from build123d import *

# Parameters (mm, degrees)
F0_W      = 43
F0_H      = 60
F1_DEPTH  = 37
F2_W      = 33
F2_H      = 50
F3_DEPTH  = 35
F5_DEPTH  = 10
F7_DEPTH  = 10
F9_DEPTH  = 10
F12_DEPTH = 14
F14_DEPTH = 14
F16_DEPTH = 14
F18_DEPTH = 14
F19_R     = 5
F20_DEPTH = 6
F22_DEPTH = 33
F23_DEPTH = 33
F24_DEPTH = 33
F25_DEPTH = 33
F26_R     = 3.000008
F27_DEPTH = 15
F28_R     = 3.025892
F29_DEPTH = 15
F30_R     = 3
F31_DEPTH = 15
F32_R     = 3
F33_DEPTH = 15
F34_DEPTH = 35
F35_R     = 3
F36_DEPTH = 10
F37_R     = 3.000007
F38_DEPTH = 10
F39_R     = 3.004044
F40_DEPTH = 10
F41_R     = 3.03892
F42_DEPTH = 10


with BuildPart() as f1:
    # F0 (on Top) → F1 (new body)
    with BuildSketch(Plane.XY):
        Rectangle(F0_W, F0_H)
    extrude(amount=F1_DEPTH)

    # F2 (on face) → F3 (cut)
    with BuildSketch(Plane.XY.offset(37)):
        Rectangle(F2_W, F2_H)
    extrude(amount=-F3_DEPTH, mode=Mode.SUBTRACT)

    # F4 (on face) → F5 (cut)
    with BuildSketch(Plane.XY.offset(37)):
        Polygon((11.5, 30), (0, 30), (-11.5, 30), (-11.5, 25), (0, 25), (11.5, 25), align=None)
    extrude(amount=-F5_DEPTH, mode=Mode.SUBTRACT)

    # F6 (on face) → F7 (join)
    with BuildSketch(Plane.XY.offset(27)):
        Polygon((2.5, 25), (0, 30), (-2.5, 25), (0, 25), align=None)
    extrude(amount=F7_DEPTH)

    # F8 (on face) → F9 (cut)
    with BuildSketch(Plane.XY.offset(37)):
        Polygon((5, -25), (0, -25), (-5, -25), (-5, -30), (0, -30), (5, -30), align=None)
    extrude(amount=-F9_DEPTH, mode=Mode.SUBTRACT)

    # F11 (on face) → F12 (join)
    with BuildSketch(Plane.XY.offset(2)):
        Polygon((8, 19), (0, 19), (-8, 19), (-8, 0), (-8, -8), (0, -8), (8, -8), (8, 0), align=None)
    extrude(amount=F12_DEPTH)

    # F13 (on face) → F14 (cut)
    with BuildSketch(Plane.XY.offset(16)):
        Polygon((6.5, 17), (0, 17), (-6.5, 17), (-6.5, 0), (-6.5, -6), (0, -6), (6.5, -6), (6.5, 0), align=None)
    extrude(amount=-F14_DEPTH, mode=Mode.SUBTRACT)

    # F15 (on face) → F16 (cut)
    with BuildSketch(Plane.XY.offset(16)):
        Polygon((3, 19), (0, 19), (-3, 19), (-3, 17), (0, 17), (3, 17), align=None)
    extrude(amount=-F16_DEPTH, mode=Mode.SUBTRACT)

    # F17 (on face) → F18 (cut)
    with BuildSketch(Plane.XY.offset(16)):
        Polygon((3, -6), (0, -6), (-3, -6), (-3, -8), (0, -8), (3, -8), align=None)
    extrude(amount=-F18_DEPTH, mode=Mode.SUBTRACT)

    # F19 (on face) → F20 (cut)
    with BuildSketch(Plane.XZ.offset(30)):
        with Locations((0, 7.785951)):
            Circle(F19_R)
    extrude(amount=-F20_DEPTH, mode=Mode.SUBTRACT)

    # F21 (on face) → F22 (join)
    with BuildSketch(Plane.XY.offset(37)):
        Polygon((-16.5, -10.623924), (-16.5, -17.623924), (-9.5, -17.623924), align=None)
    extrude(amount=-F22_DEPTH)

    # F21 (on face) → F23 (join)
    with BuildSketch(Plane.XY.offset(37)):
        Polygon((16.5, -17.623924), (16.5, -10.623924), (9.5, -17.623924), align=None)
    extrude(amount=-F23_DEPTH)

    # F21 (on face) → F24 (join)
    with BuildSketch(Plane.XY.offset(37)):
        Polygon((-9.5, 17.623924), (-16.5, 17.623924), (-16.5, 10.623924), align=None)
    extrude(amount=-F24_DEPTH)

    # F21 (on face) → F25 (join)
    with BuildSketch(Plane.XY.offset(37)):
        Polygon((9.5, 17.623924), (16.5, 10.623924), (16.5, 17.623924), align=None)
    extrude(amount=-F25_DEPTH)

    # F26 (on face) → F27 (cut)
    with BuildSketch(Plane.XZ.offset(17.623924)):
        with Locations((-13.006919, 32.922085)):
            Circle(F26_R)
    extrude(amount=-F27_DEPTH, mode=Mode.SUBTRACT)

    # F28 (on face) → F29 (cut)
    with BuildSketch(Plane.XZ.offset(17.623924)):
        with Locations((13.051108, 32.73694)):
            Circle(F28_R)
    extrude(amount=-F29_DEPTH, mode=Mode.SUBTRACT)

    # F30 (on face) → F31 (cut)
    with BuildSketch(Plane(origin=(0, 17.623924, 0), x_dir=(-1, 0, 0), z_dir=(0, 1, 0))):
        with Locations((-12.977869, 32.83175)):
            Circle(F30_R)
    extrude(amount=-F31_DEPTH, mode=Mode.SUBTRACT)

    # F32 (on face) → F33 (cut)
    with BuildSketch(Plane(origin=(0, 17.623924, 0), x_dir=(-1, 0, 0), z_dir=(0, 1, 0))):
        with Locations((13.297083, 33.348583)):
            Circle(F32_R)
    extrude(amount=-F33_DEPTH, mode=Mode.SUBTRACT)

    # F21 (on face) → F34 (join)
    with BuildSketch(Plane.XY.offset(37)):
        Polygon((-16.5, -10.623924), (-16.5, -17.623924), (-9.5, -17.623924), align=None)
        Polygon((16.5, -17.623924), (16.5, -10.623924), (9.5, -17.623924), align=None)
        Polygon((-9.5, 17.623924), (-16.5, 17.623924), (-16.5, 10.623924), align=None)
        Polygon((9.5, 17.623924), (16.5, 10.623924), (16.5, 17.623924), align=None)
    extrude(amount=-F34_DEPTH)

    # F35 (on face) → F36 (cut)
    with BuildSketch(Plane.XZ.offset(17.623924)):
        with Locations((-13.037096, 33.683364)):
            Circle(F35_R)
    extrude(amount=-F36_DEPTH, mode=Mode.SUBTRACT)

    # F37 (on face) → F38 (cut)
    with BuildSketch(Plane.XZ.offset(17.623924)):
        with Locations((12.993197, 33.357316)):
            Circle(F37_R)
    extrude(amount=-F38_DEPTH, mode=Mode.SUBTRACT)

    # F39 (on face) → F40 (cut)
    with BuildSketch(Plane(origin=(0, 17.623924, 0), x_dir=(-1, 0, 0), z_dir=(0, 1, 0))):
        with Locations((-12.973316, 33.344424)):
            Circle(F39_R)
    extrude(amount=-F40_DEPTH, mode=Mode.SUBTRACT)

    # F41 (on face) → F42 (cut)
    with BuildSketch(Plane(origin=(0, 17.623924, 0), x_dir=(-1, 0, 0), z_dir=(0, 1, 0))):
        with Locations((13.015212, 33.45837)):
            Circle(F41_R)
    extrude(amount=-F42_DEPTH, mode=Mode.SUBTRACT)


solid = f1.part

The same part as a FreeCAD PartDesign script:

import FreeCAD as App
import Part
import Sketcher
from FreeCAD import Vector

doc = App.newDocument("Part")
body = doc.addObject("PartDesign::Body", "Body")

# Sketch on XY plane
sketch1 = doc.addObject("Sketcher::SketchObject", "Sketch")
body.addObject(sketch1)
sketch1.AttachmentSupport = (doc.XY_Plane, [""])
sketch1.MapMode = "FlatFace"
sketch1.addGeometry([
    Part.LineSegment(Vector(-22, 30, 0), Vector(-22, -30, 0)),
    Part.LineSegment(Vector(-22, -30, 0), Vector(22, -30, 0)),
    Part.LineSegment(Vector(22, -30, 0), Vector(22, 30, 0)),
    Part.LineSegment(Vector(22, 30, 0), Vector(-22, 30, 0)),
], False)
sketch1.addConstraint([
    Sketcher.Constraint("Coincident", 0, 2, 1, 1),
    Sketcher.Constraint("Coincident", 1, 2, 2, 1),
    Sketcher.Constraint("Coincident", 2, 2, 3, 1),
    Sketcher.Constraint("Coincident", 3, 2, 0, 1),
    Sketcher.Constraint("Vertical", 0),
    Sketcher.Constraint("Horizontal", 1),
    Sketcher.Constraint("Vertical", 2),
    Sketcher.Constraint("Horizontal", 3),
    Sketcher.Constraint("Symmetric", 0, 2, 2, 2, -1, 1),
    Sketcher.Constraint("DistanceX", 1, 1, 1, 2, 43.0),
    Sketcher.Constraint("DistanceY", 0, 2, 0, 1, 60.0),
])
pad1 = doc.addObject("PartDesign::Pad", "Pad")
body.addObject(pad1)
pad1.Profile = sketch1
pad1.Length = 37

# Sketch on XY plane
sketch2 = doc.addObject("Sketcher::SketchObject", "Sketch001")
body.addObject(sketch2)
sketch2.AttachmentSupport = (doc.XY_Plane, [""])
sketch2.MapMode = "FlatFace"
sketch2.AttachmentOffset = App.Placement(Vector(0, 0, 37), App.Rotation())
sketch2.addGeometry([
    Part.LineSegment(Vector(-16, 25, 0), Vector(-16, -25, 0)),
    Part.LineSegment(Vector(-16, -25, 0), Vector(16, -25, 0)),
    Part.LineSegment(Vector(16, -25, 0), Vector(16, 25, 0)),
    Part.LineSegment(Vector(16, 25, 0), Vector(-16, 25, 0)),
], False)
sketch2.addConstraint([
    Sketcher.Constraint("Coincident", 0, 2, 1, 1),
    Sketcher.Constraint("Coincident", 1, 2, 2, 1),
    Sketcher.Constraint("Coincident", 2, 2, 3, 1),
    Sketcher.Constraint("Coincident", 3, 2, 0, 1),
    Sketcher.Constraint("Vertical", 0),
    Sketcher.Constraint("Horizontal", 1),
    Sketcher.Constraint("Vertical", 2),
    Sketcher.Constraint("Horizontal", 3),
    Sketcher.Constraint("Symmetric", 0, 2, 2, 2, -1, 1),
    Sketcher.Constraint("DistanceX", 1, 1, 1, 2, 33.0),
    Sketcher.Constraint("DistanceY", 0, 2, 0, 1, 50.0),
])
pocket1 = doc.addObject("PartDesign::Pocket", "Pocket")
body.addObject(pocket1)
pocket1.Profile = sketch2
pocket1.Length = 35

# Sketch on XY plane
sketch3 = doc.addObject("Sketcher::SketchObject", "Sketch002")
body.addObject(sketch3)
sketch3.AttachmentSupport = (doc.XY_Plane, [""])
sketch3.MapMode = "FlatFace"
sketch3.AttachmentOffset = App.Placement(Vector(0, 0, 37), App.Rotation())
sketch3.addGeometry([
    Part.LineSegment(Vector(12, 30, 0), Vector(-12, 30, 0)),
    Part.LineSegment(Vector(-12, 30, 0), Vector(-12, 25, 0)),
    Part.LineSegment(Vector(-12, 25, 0), Vector(12, 25, 0)),
    Part.LineSegment(Vector(12, 25, 0), Vector(12, 30, 0)),
], False)
sketch3.addConstraint([
    Sketcher.Constraint("Coincident", 0, 2, 1, 1),
    Sketcher.Constraint("Coincident", 1, 2, 2, 1),
    Sketcher.Constraint("Coincident", 2, 2, 3, 1),
    Sketcher.Constraint("Coincident", 3, 2, 0, 1),
    Sketcher.Constraint("Horizontal", 0),
    Sketcher.Constraint("Vertical", 1),
    Sketcher.Constraint("Horizontal", 2),
    Sketcher.Constraint("Vertical", 3),
    Sketcher.Constraint("DistanceX", 0, 2, 0, 1, 23.0),
    Sketcher.Constraint("DistanceY", 1, 2, 1, 1, 5.0),
    Sketcher.Constraint("DistanceY", -1, 1, 0, 2, 30.0),
    Sketcher.Constraint("DistanceX", 0, 2, -1, 1, 11.5),
])
pocket2 = doc.addObject("PartDesign::Pocket", "Pocket001")
body.addObject(pocket2)
pocket2.Profile = sketch3
pocket2.Length = 10

# Sketch on XY plane
sketch4 = doc.addObject("Sketcher::SketchObject", "Sketch003")
body.addObject(sketch4)
sketch4.AttachmentSupport = (doc.XY_Plane, [""])
sketch4.MapMode = "FlatFace"
sketch4.AttachmentOffset = App.Placement(Vector(0, 0, 27), App.Rotation())
sketch4.addGeometry([
    Part.LineSegment(Vector(2, 25, 0), Vector(0, 30, 0)),
    Part.LineSegment(Vector(0, 30, 0), Vector(-2, 25, 0)),
    Part.LineSegment(Vector(-2, 25, 0), Vector(2, 25, 0)),
], False)
sketch4.addConstraint([
    Sketcher.Constraint("Coincident", 0, 2, 1, 1),
    Sketcher.Constraint("Coincident", 1, 2, 2, 1),
    Sketcher.Constraint("Coincident", 2, 2, 0, 1),
    Sketcher.Constraint("Horizontal", 2),
    Sketcher.Constraint("PointOnObject", 0, 2, -2),
    Sketcher.Constraint("Equal", 0, 1),
    Sketcher.Constraint("DistanceX", 2, 1, 2, 2, 5.0),
    Sketcher.Constraint("DistanceY", -1, 1, 0, 2, 30.0),
    Sketcher.Constraint("DistanceY", -1, 1, 1, 2, 25.0),
])
pad2 = doc.addObject("PartDesign::Pad", "Pad001")
body.addObject(pad2)
pad2.Profile = sketch4
pad2.Length = 10

# Sketch on XY plane
sketch5 = doc.addObject("Sketcher::SketchObject", "Sketch004")
body.addObject(sketch5)
sketch5.AttachmentSupport = (doc.XY_Plane, [""])
sketch5.MapMode = "FlatFace"
sketch5.AttachmentOffset = App.Placement(Vector(0, 0, 37), App.Rotation())
sketch5.addGeometry([
    Part.LineSegment(Vector(5, -25, 0), Vector(-5, -25, 0)),
    Part.LineSegment(Vector(-5, -25, 0), Vector(-5, -30, 0)),
    Part.LineSegment(Vector(-5, -30, 0), Vector(5, -30, 0)),
    Part.LineSegment(Vector(5, -30, 0), Vector(5, -25, 0)),
], False)
sketch5.addConstraint([
    Sketcher.Constraint("Coincident", 0, 2, 1, 1),
    Sketcher.Constraint("Coincident", 1, 2, 2, 1),
    Sketcher.Constraint("Coincident", 2, 2, 3, 1),
    Sketcher.Constraint("Coincident", 3, 2, 0, 1),
    Sketcher.Constraint("Horizontal", 0),
    Sketcher.Constraint("Vertical", 1),
    Sketcher.Constraint("Horizontal", 2),
    Sketcher.Constraint("Vertical", 3),
    Sketcher.Constraint("DistanceX", 0, 2, 0, 1, 10.0),
    Sketcher.Constraint("DistanceY", 1, 2, 1, 1, 5.0),
    Sketcher.Constraint("DistanceX", 0, 2, -1, 1, 5.0),
    Sketcher.Constraint("DistanceY", 0, 2, -1, 1, 25.0),
])
pocket3 = doc.addObject("PartDesign::Pocket", "Pocket002")
body.addObject(pocket3)
pocket3.Profile = sketch5
pocket3.Length = 10

# Sketch on XY plane
sketch6 = doc.addObject("Sketcher::SketchObject", "Sketch005")
body.addObject(sketch6)
sketch6.AttachmentSupport = (doc.XY_Plane, [""])
sketch6.MapMode = "FlatFace"
sketch6.AttachmentOffset = App.Placement(Vector(0, 0, 2), App.Rotation())
sketch6.addGeometry([
    Part.LineSegment(Vector(8, 19, 0), Vector(-8, 19, 0)),
    Part.LineSegment(Vector(-8, 19, 0), Vector(-8, -8, 0)),
    Part.LineSegment(Vector(-8, -8, 0), Vector(8, -8, 0)),
    Part.LineSegment(Vector(8, -8, 0), Vector(8, 19, 0)),
], False)
sketch6.addConstraint([
    Sketcher.Constraint("Coincident", 0, 2, 1, 1),
    Sketcher.Constraint("Coincident", 1, 2, 2, 1),
    Sketcher.Constraint("Coincident", 2, 2, 3, 1),
    Sketcher.Constraint("Coincident", 3, 2, 0, 1),
    Sketcher.Constraint("Horizontal", 0),
    Sketcher.Constraint("Vertical", 1),
    Sketcher.Constraint("Horizontal", 2),
    Sketcher.Constraint("Vertical", 3),
    Sketcher.Constraint("DistanceX", 0, 2, 0, 1, 16.0),
    Sketcher.Constraint("DistanceY", 1, 2, 1, 1, 27.0),
    Sketcher.Constraint("DistanceX", 0, 2, -1, 1, 8.0),
    Sketcher.Constraint("DistanceY", -1, 1, 0, 2, 19.0),
])
pad3 = doc.addObject("PartDesign::Pad", "Pad002")
body.addObject(pad3)
pad3.Profile = sketch6
pad3.Length = 14

# Sketch on XY plane
sketch7 = doc.addObject("Sketcher::SketchObject", "Sketch006")
body.addObject(sketch7)
sketch7.AttachmentSupport = (doc.XY_Plane, [""])
sketch7.MapMode = "FlatFace"
sketch7.AttachmentOffset = App.Placement(Vector(0, 0, 16), App.Rotation())
sketch7.addGeometry([
    Part.LineSegment(Vector(6, 17, 0), Vector(-6, 17, 0)),
    Part.LineSegment(Vector(-6, 17, 0), Vector(-6, -6, 0)),
    Part.LineSegment(Vector(-6, -6, 0), Vector(6, -6, 0)),
    Part.LineSegment(Vector(6, -6, 0), Vector(6, 17, 0)),
], False)
sketch7.addConstraint([
    Sketcher.Constraint("Coincident", 0, 2, 1, 1),
    Sketcher.Constraint("Coincident", 1, 2, 2, 1),
    Sketcher.Constraint("Coincident", 2, 2, 3, 1),
    Sketcher.Constraint("Coincident", 3, 2, 0, 1),
    Sketcher.Constraint("Horizontal", 0),
    Sketcher.Constraint("Vertical", 1),
    Sketcher.Constraint("Horizontal", 2),
    Sketcher.Constraint("Vertical", 3),
    Sketcher.Constraint("DistanceX", 0, 2, 0, 1, 13.0),
    Sketcher.Constraint("DistanceY", 1, 2, 1, 1, 23.0),
    Sketcher.Constraint("DistanceY", -1, 1, 0, 2, 17.0),
    Sketcher.Constraint("DistanceX", 0, 2, -1, 1, 6.5),
])
pocket4 = doc.addObject("PartDesign::Pocket", "Pocket003")
body.addObject(pocket4)
pocket4.Profile = sketch7
pocket4.Length = 14

# Sketch on XY plane
sketch8 = doc.addObject("Sketcher::SketchObject", "Sketch007")
body.addObject(sketch8)
sketch8.AttachmentSupport = (doc.XY_Plane, [""])
sketch8.MapMode = "FlatFace"
sketch8.AttachmentOffset = App.Placement(Vector(0, 0, 16), App.Rotation())
sketch8.addGeometry([
    Part.LineSegment(Vector(3, 19, 0), Vector(-3, 19, 0)),
    Part.LineSegment(Vector(-3, 19, 0), Vector(-3, 17, 0)),
    Part.LineSegment(Vector(-3, 17, 0), Vector(3, 17, 0)),
    Part.LineSegment(Vector(3, 17, 0), Vector(3, 19, 0)),
], False)
sketch8.addConstraint([
    Sketcher.Constraint("Coincident", 0, 2, 1, 1),
    Sketcher.Constraint("Coincident", 1, 2, 2, 1),
    Sketcher.Constraint("Coincident", 2, 2, 3, 1),
    Sketcher.Constraint("Coincident", 3, 2, 0, 1),
    Sketcher.Constraint("Horizontal", 0),
    Sketcher.Constraint("Vertical", 1),
    Sketcher.Constraint("Horizontal", 2),
    Sketcher.Constraint("Vertical", 3),
    Sketcher.Constraint("DistanceX", 0, 2, 0, 1, 6.0),
    Sketcher.Constraint("DistanceY", 1, 2, 1, 1, 2.0),
    Sketcher.Constraint("DistanceX", 0, 2, -1, 1, 3.0),
    Sketcher.Constraint("DistanceY", -1, 1, 0, 2, 19.0),
])
pocket5 = doc.addObject("PartDesign::Pocket", "Pocket004")
body.addObject(pocket5)
pocket5.Profile = sketch8
pocket5.Length = 14

# Sketch on XY plane
sketch9 = doc.addObject("Sketcher::SketchObject", "Sketch008")
body.addObject(sketch9)
sketch9.AttachmentSupport = (doc.XY_Plane, [""])
sketch9.MapMode = "FlatFace"
sketch9.AttachmentOffset = App.Placement(Vector(0, 0, 16), App.Rotation())
sketch9.addGeometry([
    Part.LineSegment(Vector(3, -6, 0), Vector(-3, -6, 0)),
    Part.LineSegment(Vector(-3, -6, 0), Vector(-3, -8, 0)),
    Part.LineSegment(Vector(-3, -8, 0), Vector(3, -8, 0)),
    Part.LineSegment(Vector(3, -8, 0), Vector(3, -6, 0)),
], False)
sketch9.addConstraint([
    Sketcher.Constraint("Coincident", 0, 2, 1, 1),
    Sketcher.Constraint("Coincident", 1, 2, 2, 1),
    Sketcher.Constraint("Coincident", 2, 2, 3, 1),
    Sketcher.Constraint("Coincident", 3, 2, 0, 1),
    Sketcher.Constraint("Horizontal", 0),
    Sketcher.Constraint("Vertical", 1),
    Sketcher.Constraint("Horizontal", 2),
    Sketcher.Constraint("Vertical", 3),
    Sketcher.Constraint("DistanceX", 0, 2, 0, 1, 6.0),
    Sketcher.Constraint("DistanceY", 1, 2, 1, 1, 2.0),
    Sketcher.Constraint("DistanceX", 0, 2, -1, 1, 3.0),
    Sketcher.Constraint("DistanceY", 0, 2, -1, 1, 6.0),
])
pocket6 = doc.addObject("PartDesign::Pocket", "Pocket005")
body.addObject(pocket6)
pocket6.Profile = sketch9
pocket6.Length = 14

# Sketch on XZ plane
sketch10 = doc.addObject("Sketcher::SketchObject", "Sketch009")
body.addObject(sketch10)
sketch10.AttachmentSupport = (doc.XZ_Plane, [""])
sketch10.MapMode = "FlatFace"
sketch10.AttachmentOffset = App.Placement(Vector(0, 0, 30), App.Rotation())
sketch10.addGeometry(Part.Circle(Vector(0, 8, 0), Vector(0, 0, 1), 5), False)
sketch10.addConstraint([
    Sketcher.Constraint("PointOnObject", 0, 3, -2),
    Sketcher.Constraint("Diameter", 0, 10.0),
    Sketcher.Constraint("DistanceY", -1, 1, 0, 3, 7.785951),
])
pocket7 = doc.addObject("PartDesign::Pocket", "Pocket006")
body.addObject(pocket7)
pocket7.Profile = sketch10
pocket7.Length = 6

# Sketch on XY plane
sketch11 = doc.addObject("Sketcher::SketchObject", "Sketch010")
body.addObject(sketch11)
sketch11.AttachmentSupport = (doc.XY_Plane, [""])
sketch11.MapMode = "FlatFace"
sketch11.AttachmentOffset = App.Placement(Vector(0, 0, 37), App.Rotation())
sketch11.addGeometry([
    Part.LineSegment(Vector(-16, -11, 0), Vector(-16, -18, 0)),
    Part.LineSegment(Vector(-16, -18, 0), Vector(-10, -18, 0)),
    Part.LineSegment(Vector(-10, -18, 0), Vector(-16, -11, 0)),
], False)
sketch11.addConstraint([
    Sketcher.Constraint("Coincident", 0, 2, 1, 1),
    Sketcher.Constraint("Coincident", 1, 2, 2, 1),
    Sketcher.Constraint("Coincident", 2, 2, 0, 1),
    Sketcher.Constraint("Vertical", 0),
    Sketcher.Constraint("Horizontal", 1),
    Sketcher.Constraint("Equal", 1, 0),
    Sketcher.Constraint("DistanceX", 1, 1, 1, 2, 7.0),
    Sketcher.Constraint("DistanceX", 0, 2, -1, 1, 16.5),
    Sketcher.Constraint("DistanceY", 0, 2, -1, 1, 17.623924),
])
pad4 = doc.addObject("PartDesign::Pad", "Pad003")
body.addObject(pad4)
pad4.Profile = sketch11
pad4.Length = 33
pad4.Reversed = True

# Sketch on XY plane
sketch12 = doc.addObject("Sketcher::SketchObject", "Sketch011")
body.addObject(sketch12)
sketch12.AttachmentSupport = (doc.XY_Plane, [""])
sketch12.MapMode = "FlatFace"
sketch12.AttachmentOffset = App.Placement(Vector(0, 0, 37), App.Rotation())
sketch12.addGeometry([
    Part.LineSegment(Vector(16, -18, 0), Vector(16, -11, 0)),
    Part.LineSegment(Vector(16, -11, 0), Vector(10, -18, 0)),
    Part.LineSegment(Vector(10, -18, 0), Vector(16, -18, 0)),
], False)
sketch12.addConstraint([
    Sketcher.Constraint("Coincident", 0, 2, 1, 1),
    Sketcher.Constraint("Coincident", 1, 2, 2, 1),
    Sketcher.Constraint("Coincident", 2, 2, 0, 1),
    Sketcher.Constraint("Vertical", 0),
    Sketcher.Constraint("Horizontal", 2),
    Sketcher.Constraint("Equal", 2, 0),
    Sketcher.Constraint("DistanceX", 2, 1, 2, 2, 7.0),
    Sketcher.Constraint("DistanceX", -1, 1, 0, 2, 16.5),
    Sketcher.Constraint("DistanceY", 0, 2, -1, 1, 10.623924),
])
pad5 = doc.addObject("PartDesign::Pad", "Pad004")
body.addObject(pad5)
pad5.Profile = sketch12
pad5.Length = 33
pad5.Reversed = True

# Sketch on XY plane
sketch13 = doc.addObject("Sketcher::SketchObject", "Sketch012")
body.addObject(sketch13)
sketch13.AttachmentSupport = (doc.XY_Plane, [""])
sketch13.MapMode = "FlatFace"
sketch13.AttachmentOffset = App.Placement(Vector(0, 0, 37), App.Rotation())
sketch13.addGeometry([
    Part.LineSegment(Vector(-10, 18, 0), Vector(-16, 18, 0)),
    Part.LineSegment(Vector(-16, 18, 0), Vector(-16, 11, 0)),
    Part.LineSegment(Vector(-16, 11, 0), Vector(-10, 18, 0)),
], False)
sketch13.addConstraint([
    Sketcher.Constraint("Coincident", 0, 2, 1, 1),
    Sketcher.Constraint("Coincident", 1, 2, 2, 1),
    Sketcher.Constraint("Coincident", 2, 2, 0, 1),
    Sketcher.Constraint("Horizontal", 0),
    Sketcher.Constraint("Vertical", 1),
    Sketcher.Constraint("Equal", 0, 1),
    Sketcher.Constraint("DistanceX", 0, 2, 0, 1, 7.0),
    Sketcher.Constraint("DistanceX", 0, 2, -1, 1, 16.5),
    Sketcher.Constraint("DistanceY", -1, 1, 0, 2, 17.623924),
])
pad6 = doc.addObject("PartDesign::Pad", "Pad005")
body.addObject(pad6)
pad6.Profile = sketch13
pad6.Length = 33
pad6.Reversed = True

# Sketch on XY plane
sketch14 = doc.addObject("Sketcher::SketchObject", "Sketch013")
body.addObject(sketch14)
sketch14.AttachmentSupport = (doc.XY_Plane, [""])
sketch14.MapMode = "FlatFace"
sketch14.AttachmentOffset = App.Placement(Vector(0, 0, 37), App.Rotation())
sketch14.addGeometry([
    Part.LineSegment(Vector(10, 18, 0), Vector(16, 11, 0)),
    Part.LineSegment(Vector(16, 11, 0), Vector(16, 18, 0)),
    Part.LineSegment(Vector(16, 18, 0), Vector(10, 18, 0)),
], False)
sketch14.addConstraint([
    Sketcher.Constraint("Coincident", 0, 2, 1, 1),
    Sketcher.Constraint("Coincident", 1, 2, 2, 1),
    Sketcher.Constraint("Coincident", 2, 2, 0, 1),
    Sketcher.Constraint("Vertical", 1),
    Sketcher.Constraint("Horizontal", 2),
    Sketcher.Constraint("Equal", 2, 1),
    Sketcher.Constraint("DistanceX", 2, 2, 2, 1, 7.0),
    Sketcher.Constraint("DistanceX", -1, 1, 0, 2, 16.5),
    Sketcher.Constraint("DistanceY", -1, 1, 0, 2, 10.623924),
])
pad7 = doc.addObject("PartDesign::Pad", "Pad006")
body.addObject(pad7)
pad7.Profile = sketch14
pad7.Length = 33
pad7.Reversed = True

# Sketch on XZ plane
sketch15 = doc.addObject("Sketcher::SketchObject", "Sketch014")
body.addObject(sketch15)
sketch15.AttachmentSupport = (doc.XZ_Plane, [""])
sketch15.MapMode = "FlatFace"
sketch15.AttachmentOffset = App.Placement(Vector(0, 0, 17.623924), App.Rotation())
sketch15.addGeometry(Part.Circle(Vector(-13, 32.9, 0), Vector(0, 0, 1), 3), False)
sketch15.addConstraint([
    Sketcher.Constraint("Diameter", 0, 6.000016),
    Sketcher.Constraint("DistanceX", 0, 3, -1, 1, 13.006919),
    Sketcher.Constraint("DistanceY", -1, 1, 0, 3, 32.922085),
])
pocket8 = doc.addObject("PartDesign::Pocket", "Pocket007")
body.addObject(pocket8)
pocket8.Profile = sketch15
pocket8.Length = 15

# Sketch on XZ plane
sketch16 = doc.addObject("Sketcher::SketchObject", "Sketch015")
body.addObject(sketch16)
sketch16.AttachmentSupport = (doc.XZ_Plane, [""])
sketch16.MapMode = "FlatFace"
sketch16.AttachmentOffset = App.Placement(Vector(0, 0, 17.623924), App.Rotation())
sketch16.addGeometry(Part.Circle(Vector(13.1, 32.7, 0), Vector(0, 0, 1), 3), False)
sketch16.addConstraint([
    Sketcher.Constraint("Diameter", 0, 6.051784),
    Sketcher.Constraint("DistanceY", -1, 1, 0, 3, 32.73694),
    Sketcher.Constraint("DistanceX", -1, 1, 0, 3, 13.051108),
])
pocket9 = doc.addObject("PartDesign::Pocket", "Pocket008")
body.addObject(pocket9)
pocket9.Profile = sketch16
pocket9.Length = 15

# Sketch on XZ plane
sketch17 = doc.addObject("Sketcher::SketchObject", "Sketch016")
body.addObject(sketch17)
sketch17.AttachmentSupport = (doc.XZ_Plane, [""])
sketch17.MapMode = "FlatFace"
sketch17.AttachmentOffset = App.Placement(Vector(0, 0, -17.623924), App.Rotation())
sketch17.addGeometry(Part.Circle(Vector(13, 32.8, 0), Vector(0, 0, 1), 3), False)
sketch17.addConstraint([
    Sketcher.Constraint("Diameter", 0, 6.0),
    Sketcher.Constraint("DistanceX", -1, 1, 0, 3, 12.977869),
    Sketcher.Constraint("DistanceY", -1, 1, 0, 3, 32.83175),
])
pocket10 = doc.addObject("PartDesign::Pocket", "Pocket009")
body.addObject(pocket10)
pocket10.Profile = sketch17
pocket10.Length = 15
pocket10.Reversed = True

# Sketch on XZ plane
sketch18 = doc.addObject("Sketcher::SketchObject", "Sketch017")
body.addObject(sketch18)
sketch18.AttachmentSupport = (doc.XZ_Plane, [""])
sketch18.MapMode = "FlatFace"
sketch18.AttachmentOffset = App.Placement(Vector(0, 0, -17.623924), App.Rotation())
sketch18.addGeometry(Part.Circle(Vector(-13.3, 33.3, 0), Vector(0, 0, 1), 3), False)
sketch18.addConstraint([
    Sketcher.Constraint("Diameter", 0, 6.0),
    Sketcher.Constraint("DistanceX", 0, 3, -1, 1, 13.297083),
    Sketcher.Constraint("DistanceY", -1, 1, 0, 3, 33.348583),
])
pocket11 = doc.addObject("PartDesign::Pocket", "Pocket010")
body.addObject(pocket11)
pocket11.Profile = sketch18
pocket11.Length = 15
pocket11.Reversed = True

# Sketch on XY plane
sketch19 = doc.addObject("Sketcher::SketchObject", "Sketch018")
body.addObject(sketch19)
sketch19.AttachmentSupport = (doc.XY_Plane, [""])
sketch19.MapMode = "FlatFace"
sketch19.AttachmentOffset = App.Placement(Vector(0, 0, 37), App.Rotation())
sketch19.addGeometry([
    Part.LineSegment(Vector(-16, -11, 0), Vector(-16, -18, 0)),  # 0
    Part.LineSegment(Vector(-16, -18, 0), Vector(-10, -18, 0)),  # 1
    Part.LineSegment(Vector(-10, -18, 0), Vector(-16, -11, 0)),  # 2
    Part.LineSegment(Vector(16, -18, 0), Vector(16, -11, 0)),  # 3
    Part.LineSegment(Vector(16, -11, 0), Vector(10, -18, 0)),  # 4
    Part.LineSegment(Vector(10, -18, 0), Vector(16, -18, 0)),  # 5
    Part.LineSegment(Vector(-10, 18, 0), Vector(-16, 18, 0)),  # 6
    Part.LineSegment(Vector(-16, 18, 0), Vector(-16, 11, 0)),  # 7
    Part.LineSegment(Vector(-16, 11, 0), Vector(-10, 18, 0)),  # 8
    Part.LineSegment(Vector(10, 18, 0), Vector(16, 11, 0)),  # 9
    Part.LineSegment(Vector(16, 11, 0), Vector(16, 18, 0)),  # 10
    Part.LineSegment(Vector(16, 18, 0), Vector(10, 18, 0)),  # 11
], False)
sketch19.addConstraint([
    Sketcher.Constraint("Coincident", 0, 2, 1, 1),
    Sketcher.Constraint("Coincident", 1, 2, 2, 1),
    Sketcher.Constraint("Coincident", 2, 2, 0, 1),
    Sketcher.Constraint("Coincident", 3, 2, 4, 1),
    Sketcher.Constraint("Coincident", 4, 2, 5, 1),
    Sketcher.Constraint("Coincident", 5, 2, 3, 1),
    Sketcher.Constraint("Coincident", 6, 2, 7, 1),
    Sketcher.Constraint("Coincident", 7, 2, 8, 1),
    Sketcher.Constraint("Coincident", 8, 2, 6, 1),
    Sketcher.Constraint("Coincident", 9, 2, 10, 1),
    Sketcher.Constraint("Coincident", 10, 2, 11, 1),
    Sketcher.Constraint("Coincident", 11, 2, 9, 1),
    Sketcher.Constraint("Vertical", 0),
    Sketcher.Constraint("Horizontal", 1),
    Sketcher.Constraint("Vertical", 3),
    Sketcher.Constraint("Horizontal", 5),
    Sketcher.Constraint("Horizontal", 6),
    Sketcher.Constraint("Vertical", 7),
    Sketcher.Constraint("Vertical", 10),
    Sketcher.Constraint("Horizontal", 11),
    Sketcher.Constraint("Symmetric", 5, 2, 6, 2, -1, 1),
    Sketcher.Constraint("Symmetric", 2, 2, 9, 2, -1, 1),
    Sketcher.Constraint("Symmetric", 1, 2, 11, 2, -1, 1),
    Sketcher.Constraint("Symmetric", 2, 2, 3, 2, -2),
    Sketcher.Constraint("Symmetric", 1, 2, 4, 2, -2),
    Sketcher.Constraint("Perpendicular", 2, 4),
    Sketcher.Constraint("Parallel", 4, 8),
    Sketcher.Constraint("Horizontal", 7, 2, 9, 2),
    Sketcher.Constraint("DistanceX", 1, 1, 1, 2, 7.0),
    Sketcher.Constraint("DistanceX", 1, 2, 3, 2, 26.0),
    Sketcher.Constraint("DistanceY", 2, 2, 7, 2, 21.247848),
])
pad8 = doc.addObject("PartDesign::Pad", "Pad007")
body.addObject(pad8)
pad8.Profile = sketch19
pad8.Length = 35
pad8.Reversed = True

# Sketch on XZ plane
sketch20 = doc.addObject("Sketcher::SketchObject", "Sketch019")
body.addObject(sketch20)
sketch20.AttachmentSupport = (doc.XZ_Plane, [""])
sketch20.MapMode = "FlatFace"
sketch20.AttachmentOffset = App.Placement(Vector(0, 0, 17.623924), App.Rotation())
sketch20.addGeometry(Part.Circle(Vector(-13, 33.7, 0), Vector(0, 0, 1), 3), False)
sketch20.addConstraint([
    Sketcher.Constraint("Diameter", 0, 6.0),
    Sketcher.Constraint("DistanceX", 0, 3, -1, 1, 13.037096),
    Sketcher.Constraint("DistanceY", -1, 1, 0, 3, 33.683364),
])
pocket12 = doc.addObject("PartDesign::Pocket", "Pocket011")
body.addObject(pocket12)
pocket12.Profile = sketch20
pocket12.Length = 10

# Sketch on XZ plane
sketch21 = doc.addObject("Sketcher::SketchObject", "Sketch020")
body.addObject(sketch21)
sketch21.AttachmentSupport = (doc.XZ_Plane, [""])
sketch21.MapMode = "FlatFace"
sketch21.AttachmentOffset = App.Placement(Vector(0, 0, 17.623924), App.Rotation())
sketch21.addGeometry(Part.Circle(Vector(13, 33.4, 0), Vector(0, 0, 1), 3), False)
sketch21.addConstraint([
    Sketcher.Constraint("Diameter", 0, 6.000014),
    Sketcher.Constraint("DistanceX", -1, 1, 0, 3, 12.993197),
    Sketcher.Constraint("DistanceY", -1, 1, 0, 3, 33.357316),
])
pocket13 = doc.addObject("PartDesign::Pocket", "Pocket012")
body.addObject(pocket13)
pocket13.Profile = sketch21
pocket13.Length = 10

# Sketch on XZ plane
sketch22 = doc.addObject("Sketcher::SketchObject", "Sketch021")
body.addObject(sketch22)
sketch22.AttachmentSupport = (doc.XZ_Plane, [""])
sketch22.MapMode = "FlatFace"
sketch22.AttachmentOffset = App.Placement(Vector(0, 0, -17.623924), App.Rotation())
sketch22.addGeometry(Part.Circle(Vector(13, 33.3, 0), Vector(0, 0, 1), 3), False)
sketch22.addConstraint([
    Sketcher.Constraint("Diameter", 0, 6.008088),
    Sketcher.Constraint("DistanceX", -1, 1, 0, 3, 12.973316),
    Sketcher.Constraint("DistanceY", -1, 1, 0, 3, 33.344424),
])
pocket14 = doc.addObject("PartDesign::Pocket", "Pocket013")
body.addObject(pocket14)
pocket14.Profile = sketch22
pocket14.Length = 10
pocket14.Reversed = True

# Sketch on XZ plane
sketch23 = doc.addObject("Sketcher::SketchObject", "Sketch022")
body.addObject(sketch23)
sketch23.AttachmentSupport = (doc.XZ_Plane, [""])
sketch23.MapMode = "FlatFace"
sketch23.AttachmentOffset = App.Placement(Vector(0, 0, -17.623924), App.Rotation())
sketch23.addGeometry(Part.Circle(Vector(-13, 33.5, 0), Vector(0, 0, 1), 3), False)
sketch23.addConstraint([
    Sketcher.Constraint("Diameter", 0, 6.07784),
    Sketcher.Constraint("DistanceY", -1, 1, 0, 3, 33.45837),
    Sketcher.Constraint("DistanceX", 0, 3, -1, 1, 13.015212),
])
pocket15 = doc.addObject("PartDesign::Pocket", "Pocket014")
body.addObject(pocket15)
pocket15.Profile = sketch23
pocket15.Length = 10
pocket15.Reversed = True

doc.recompute()
